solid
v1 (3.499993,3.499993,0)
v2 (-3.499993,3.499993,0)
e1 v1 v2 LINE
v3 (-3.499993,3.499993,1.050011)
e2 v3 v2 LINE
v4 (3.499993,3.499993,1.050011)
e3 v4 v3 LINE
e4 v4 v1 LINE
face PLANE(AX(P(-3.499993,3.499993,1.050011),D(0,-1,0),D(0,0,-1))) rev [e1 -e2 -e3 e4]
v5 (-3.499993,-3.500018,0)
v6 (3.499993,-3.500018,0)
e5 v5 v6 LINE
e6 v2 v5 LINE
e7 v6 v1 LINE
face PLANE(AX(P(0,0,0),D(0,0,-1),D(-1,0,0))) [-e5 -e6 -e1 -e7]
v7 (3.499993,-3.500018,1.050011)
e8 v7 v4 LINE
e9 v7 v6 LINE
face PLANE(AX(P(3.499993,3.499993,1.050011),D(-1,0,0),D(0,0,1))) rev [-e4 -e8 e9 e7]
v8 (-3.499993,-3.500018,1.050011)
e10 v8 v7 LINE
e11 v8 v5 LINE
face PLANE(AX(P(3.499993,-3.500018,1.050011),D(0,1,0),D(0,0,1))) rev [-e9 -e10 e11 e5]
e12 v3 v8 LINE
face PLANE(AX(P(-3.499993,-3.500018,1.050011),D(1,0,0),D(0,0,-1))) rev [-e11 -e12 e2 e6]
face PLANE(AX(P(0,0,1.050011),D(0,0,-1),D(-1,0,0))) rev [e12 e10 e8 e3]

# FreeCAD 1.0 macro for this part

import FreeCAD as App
import Part
import Sketcher
from FreeCAD import Vector
Q = App.Units.Quantity

doc = App.newDocument("Part")
params = doc.addObject("Spreadsheet::Sheet", "Params")
for row, (alias, value) in enumerate([
    ("pad1_length", "1.050011 mm"),
], start=1):
    params.set(f"A{row}", alias)
    params.set(f"B{row}", "=" + value)
    params.setAlias(f"B{row}", alias)

body = doc.addObject("PartDesign::Body", "Body")

# Sketch on XY plane
sketch1 = body.newObject("Sketcher::SketchObject", "Sketch")
sketch1.AttachmentSupport = (doc.getObject("XY_Plane"), [""])
sketch1.MapMode = "FlatFace"
sketch1.addGeometry(Part.LineSegment(Vector(-3.499993, 3.499993, 0), Vector(-3.499993, -3.500018, 0)), False)
sketch1.addGeometry(Part.LineSegment(Vector(-3.499993, -3.500018, 0), Vector(3.499993, -3.500018, 0)), False)
sketch1.addGeometry(Part.LineSegment(Vector(3.499993, -3.500018, 0), Vector(3.499993, 3.499993, 0)), False)
sketch1.addGeometry(Part.LineSegment(Vector(3.499993, 3.499993, 0), Vector(-3.499993, 3.499993, 0)), False)
sketch1.addConstraint(Sketcher.Constraint("Coincident", 0, 2, 1, 1))
sketch1.addConstraint(Sketcher.Constraint("Coincident", 1, 2, 2, 1))
sketch1.addConstraint(Sketcher.Constraint("Coincident", 2, 2, 3, 1))
sketch1.addConstraint(Sketcher.Constraint("Coincident", 3, 2, 0, 1))
sketch1.addConstraint(Sketcher.Constraint("Vertical", 0))
sketch1.addConstraint(Sketcher.Constraint("Horizontal", 1))
sketch1.addConstraint(Sketcher.Constraint("Vertical", 2))
sketch1.addConstraint(Sketcher.Constraint("Horizontal", 3))
sketch1.addConstraint(Sketcher.Constraint("DistanceY", 0, 2, 0, 1, Q("7.000011 mm")))
sketch1.addConstraint(Sketcher.Constraint("DistanceX", 1, 1, 1, 2, Q("6.999986 mm")))
sketch1.addConstraint(Sketcher.Constraint("DistanceY", 0, 2, -1, 1, Q("3.500018 mm")))
sketch1.addConstraint(Sketcher.Constraint("DistanceX", 0, 2, -1, 1, Q("3.499993 mm")))
pad1 = body.newObject("PartDesign::Pad", "Pad")
pad1.Profile = sketch1
pad1.setExpression("Length", "Params.pad1_length")

doc.recompute()
